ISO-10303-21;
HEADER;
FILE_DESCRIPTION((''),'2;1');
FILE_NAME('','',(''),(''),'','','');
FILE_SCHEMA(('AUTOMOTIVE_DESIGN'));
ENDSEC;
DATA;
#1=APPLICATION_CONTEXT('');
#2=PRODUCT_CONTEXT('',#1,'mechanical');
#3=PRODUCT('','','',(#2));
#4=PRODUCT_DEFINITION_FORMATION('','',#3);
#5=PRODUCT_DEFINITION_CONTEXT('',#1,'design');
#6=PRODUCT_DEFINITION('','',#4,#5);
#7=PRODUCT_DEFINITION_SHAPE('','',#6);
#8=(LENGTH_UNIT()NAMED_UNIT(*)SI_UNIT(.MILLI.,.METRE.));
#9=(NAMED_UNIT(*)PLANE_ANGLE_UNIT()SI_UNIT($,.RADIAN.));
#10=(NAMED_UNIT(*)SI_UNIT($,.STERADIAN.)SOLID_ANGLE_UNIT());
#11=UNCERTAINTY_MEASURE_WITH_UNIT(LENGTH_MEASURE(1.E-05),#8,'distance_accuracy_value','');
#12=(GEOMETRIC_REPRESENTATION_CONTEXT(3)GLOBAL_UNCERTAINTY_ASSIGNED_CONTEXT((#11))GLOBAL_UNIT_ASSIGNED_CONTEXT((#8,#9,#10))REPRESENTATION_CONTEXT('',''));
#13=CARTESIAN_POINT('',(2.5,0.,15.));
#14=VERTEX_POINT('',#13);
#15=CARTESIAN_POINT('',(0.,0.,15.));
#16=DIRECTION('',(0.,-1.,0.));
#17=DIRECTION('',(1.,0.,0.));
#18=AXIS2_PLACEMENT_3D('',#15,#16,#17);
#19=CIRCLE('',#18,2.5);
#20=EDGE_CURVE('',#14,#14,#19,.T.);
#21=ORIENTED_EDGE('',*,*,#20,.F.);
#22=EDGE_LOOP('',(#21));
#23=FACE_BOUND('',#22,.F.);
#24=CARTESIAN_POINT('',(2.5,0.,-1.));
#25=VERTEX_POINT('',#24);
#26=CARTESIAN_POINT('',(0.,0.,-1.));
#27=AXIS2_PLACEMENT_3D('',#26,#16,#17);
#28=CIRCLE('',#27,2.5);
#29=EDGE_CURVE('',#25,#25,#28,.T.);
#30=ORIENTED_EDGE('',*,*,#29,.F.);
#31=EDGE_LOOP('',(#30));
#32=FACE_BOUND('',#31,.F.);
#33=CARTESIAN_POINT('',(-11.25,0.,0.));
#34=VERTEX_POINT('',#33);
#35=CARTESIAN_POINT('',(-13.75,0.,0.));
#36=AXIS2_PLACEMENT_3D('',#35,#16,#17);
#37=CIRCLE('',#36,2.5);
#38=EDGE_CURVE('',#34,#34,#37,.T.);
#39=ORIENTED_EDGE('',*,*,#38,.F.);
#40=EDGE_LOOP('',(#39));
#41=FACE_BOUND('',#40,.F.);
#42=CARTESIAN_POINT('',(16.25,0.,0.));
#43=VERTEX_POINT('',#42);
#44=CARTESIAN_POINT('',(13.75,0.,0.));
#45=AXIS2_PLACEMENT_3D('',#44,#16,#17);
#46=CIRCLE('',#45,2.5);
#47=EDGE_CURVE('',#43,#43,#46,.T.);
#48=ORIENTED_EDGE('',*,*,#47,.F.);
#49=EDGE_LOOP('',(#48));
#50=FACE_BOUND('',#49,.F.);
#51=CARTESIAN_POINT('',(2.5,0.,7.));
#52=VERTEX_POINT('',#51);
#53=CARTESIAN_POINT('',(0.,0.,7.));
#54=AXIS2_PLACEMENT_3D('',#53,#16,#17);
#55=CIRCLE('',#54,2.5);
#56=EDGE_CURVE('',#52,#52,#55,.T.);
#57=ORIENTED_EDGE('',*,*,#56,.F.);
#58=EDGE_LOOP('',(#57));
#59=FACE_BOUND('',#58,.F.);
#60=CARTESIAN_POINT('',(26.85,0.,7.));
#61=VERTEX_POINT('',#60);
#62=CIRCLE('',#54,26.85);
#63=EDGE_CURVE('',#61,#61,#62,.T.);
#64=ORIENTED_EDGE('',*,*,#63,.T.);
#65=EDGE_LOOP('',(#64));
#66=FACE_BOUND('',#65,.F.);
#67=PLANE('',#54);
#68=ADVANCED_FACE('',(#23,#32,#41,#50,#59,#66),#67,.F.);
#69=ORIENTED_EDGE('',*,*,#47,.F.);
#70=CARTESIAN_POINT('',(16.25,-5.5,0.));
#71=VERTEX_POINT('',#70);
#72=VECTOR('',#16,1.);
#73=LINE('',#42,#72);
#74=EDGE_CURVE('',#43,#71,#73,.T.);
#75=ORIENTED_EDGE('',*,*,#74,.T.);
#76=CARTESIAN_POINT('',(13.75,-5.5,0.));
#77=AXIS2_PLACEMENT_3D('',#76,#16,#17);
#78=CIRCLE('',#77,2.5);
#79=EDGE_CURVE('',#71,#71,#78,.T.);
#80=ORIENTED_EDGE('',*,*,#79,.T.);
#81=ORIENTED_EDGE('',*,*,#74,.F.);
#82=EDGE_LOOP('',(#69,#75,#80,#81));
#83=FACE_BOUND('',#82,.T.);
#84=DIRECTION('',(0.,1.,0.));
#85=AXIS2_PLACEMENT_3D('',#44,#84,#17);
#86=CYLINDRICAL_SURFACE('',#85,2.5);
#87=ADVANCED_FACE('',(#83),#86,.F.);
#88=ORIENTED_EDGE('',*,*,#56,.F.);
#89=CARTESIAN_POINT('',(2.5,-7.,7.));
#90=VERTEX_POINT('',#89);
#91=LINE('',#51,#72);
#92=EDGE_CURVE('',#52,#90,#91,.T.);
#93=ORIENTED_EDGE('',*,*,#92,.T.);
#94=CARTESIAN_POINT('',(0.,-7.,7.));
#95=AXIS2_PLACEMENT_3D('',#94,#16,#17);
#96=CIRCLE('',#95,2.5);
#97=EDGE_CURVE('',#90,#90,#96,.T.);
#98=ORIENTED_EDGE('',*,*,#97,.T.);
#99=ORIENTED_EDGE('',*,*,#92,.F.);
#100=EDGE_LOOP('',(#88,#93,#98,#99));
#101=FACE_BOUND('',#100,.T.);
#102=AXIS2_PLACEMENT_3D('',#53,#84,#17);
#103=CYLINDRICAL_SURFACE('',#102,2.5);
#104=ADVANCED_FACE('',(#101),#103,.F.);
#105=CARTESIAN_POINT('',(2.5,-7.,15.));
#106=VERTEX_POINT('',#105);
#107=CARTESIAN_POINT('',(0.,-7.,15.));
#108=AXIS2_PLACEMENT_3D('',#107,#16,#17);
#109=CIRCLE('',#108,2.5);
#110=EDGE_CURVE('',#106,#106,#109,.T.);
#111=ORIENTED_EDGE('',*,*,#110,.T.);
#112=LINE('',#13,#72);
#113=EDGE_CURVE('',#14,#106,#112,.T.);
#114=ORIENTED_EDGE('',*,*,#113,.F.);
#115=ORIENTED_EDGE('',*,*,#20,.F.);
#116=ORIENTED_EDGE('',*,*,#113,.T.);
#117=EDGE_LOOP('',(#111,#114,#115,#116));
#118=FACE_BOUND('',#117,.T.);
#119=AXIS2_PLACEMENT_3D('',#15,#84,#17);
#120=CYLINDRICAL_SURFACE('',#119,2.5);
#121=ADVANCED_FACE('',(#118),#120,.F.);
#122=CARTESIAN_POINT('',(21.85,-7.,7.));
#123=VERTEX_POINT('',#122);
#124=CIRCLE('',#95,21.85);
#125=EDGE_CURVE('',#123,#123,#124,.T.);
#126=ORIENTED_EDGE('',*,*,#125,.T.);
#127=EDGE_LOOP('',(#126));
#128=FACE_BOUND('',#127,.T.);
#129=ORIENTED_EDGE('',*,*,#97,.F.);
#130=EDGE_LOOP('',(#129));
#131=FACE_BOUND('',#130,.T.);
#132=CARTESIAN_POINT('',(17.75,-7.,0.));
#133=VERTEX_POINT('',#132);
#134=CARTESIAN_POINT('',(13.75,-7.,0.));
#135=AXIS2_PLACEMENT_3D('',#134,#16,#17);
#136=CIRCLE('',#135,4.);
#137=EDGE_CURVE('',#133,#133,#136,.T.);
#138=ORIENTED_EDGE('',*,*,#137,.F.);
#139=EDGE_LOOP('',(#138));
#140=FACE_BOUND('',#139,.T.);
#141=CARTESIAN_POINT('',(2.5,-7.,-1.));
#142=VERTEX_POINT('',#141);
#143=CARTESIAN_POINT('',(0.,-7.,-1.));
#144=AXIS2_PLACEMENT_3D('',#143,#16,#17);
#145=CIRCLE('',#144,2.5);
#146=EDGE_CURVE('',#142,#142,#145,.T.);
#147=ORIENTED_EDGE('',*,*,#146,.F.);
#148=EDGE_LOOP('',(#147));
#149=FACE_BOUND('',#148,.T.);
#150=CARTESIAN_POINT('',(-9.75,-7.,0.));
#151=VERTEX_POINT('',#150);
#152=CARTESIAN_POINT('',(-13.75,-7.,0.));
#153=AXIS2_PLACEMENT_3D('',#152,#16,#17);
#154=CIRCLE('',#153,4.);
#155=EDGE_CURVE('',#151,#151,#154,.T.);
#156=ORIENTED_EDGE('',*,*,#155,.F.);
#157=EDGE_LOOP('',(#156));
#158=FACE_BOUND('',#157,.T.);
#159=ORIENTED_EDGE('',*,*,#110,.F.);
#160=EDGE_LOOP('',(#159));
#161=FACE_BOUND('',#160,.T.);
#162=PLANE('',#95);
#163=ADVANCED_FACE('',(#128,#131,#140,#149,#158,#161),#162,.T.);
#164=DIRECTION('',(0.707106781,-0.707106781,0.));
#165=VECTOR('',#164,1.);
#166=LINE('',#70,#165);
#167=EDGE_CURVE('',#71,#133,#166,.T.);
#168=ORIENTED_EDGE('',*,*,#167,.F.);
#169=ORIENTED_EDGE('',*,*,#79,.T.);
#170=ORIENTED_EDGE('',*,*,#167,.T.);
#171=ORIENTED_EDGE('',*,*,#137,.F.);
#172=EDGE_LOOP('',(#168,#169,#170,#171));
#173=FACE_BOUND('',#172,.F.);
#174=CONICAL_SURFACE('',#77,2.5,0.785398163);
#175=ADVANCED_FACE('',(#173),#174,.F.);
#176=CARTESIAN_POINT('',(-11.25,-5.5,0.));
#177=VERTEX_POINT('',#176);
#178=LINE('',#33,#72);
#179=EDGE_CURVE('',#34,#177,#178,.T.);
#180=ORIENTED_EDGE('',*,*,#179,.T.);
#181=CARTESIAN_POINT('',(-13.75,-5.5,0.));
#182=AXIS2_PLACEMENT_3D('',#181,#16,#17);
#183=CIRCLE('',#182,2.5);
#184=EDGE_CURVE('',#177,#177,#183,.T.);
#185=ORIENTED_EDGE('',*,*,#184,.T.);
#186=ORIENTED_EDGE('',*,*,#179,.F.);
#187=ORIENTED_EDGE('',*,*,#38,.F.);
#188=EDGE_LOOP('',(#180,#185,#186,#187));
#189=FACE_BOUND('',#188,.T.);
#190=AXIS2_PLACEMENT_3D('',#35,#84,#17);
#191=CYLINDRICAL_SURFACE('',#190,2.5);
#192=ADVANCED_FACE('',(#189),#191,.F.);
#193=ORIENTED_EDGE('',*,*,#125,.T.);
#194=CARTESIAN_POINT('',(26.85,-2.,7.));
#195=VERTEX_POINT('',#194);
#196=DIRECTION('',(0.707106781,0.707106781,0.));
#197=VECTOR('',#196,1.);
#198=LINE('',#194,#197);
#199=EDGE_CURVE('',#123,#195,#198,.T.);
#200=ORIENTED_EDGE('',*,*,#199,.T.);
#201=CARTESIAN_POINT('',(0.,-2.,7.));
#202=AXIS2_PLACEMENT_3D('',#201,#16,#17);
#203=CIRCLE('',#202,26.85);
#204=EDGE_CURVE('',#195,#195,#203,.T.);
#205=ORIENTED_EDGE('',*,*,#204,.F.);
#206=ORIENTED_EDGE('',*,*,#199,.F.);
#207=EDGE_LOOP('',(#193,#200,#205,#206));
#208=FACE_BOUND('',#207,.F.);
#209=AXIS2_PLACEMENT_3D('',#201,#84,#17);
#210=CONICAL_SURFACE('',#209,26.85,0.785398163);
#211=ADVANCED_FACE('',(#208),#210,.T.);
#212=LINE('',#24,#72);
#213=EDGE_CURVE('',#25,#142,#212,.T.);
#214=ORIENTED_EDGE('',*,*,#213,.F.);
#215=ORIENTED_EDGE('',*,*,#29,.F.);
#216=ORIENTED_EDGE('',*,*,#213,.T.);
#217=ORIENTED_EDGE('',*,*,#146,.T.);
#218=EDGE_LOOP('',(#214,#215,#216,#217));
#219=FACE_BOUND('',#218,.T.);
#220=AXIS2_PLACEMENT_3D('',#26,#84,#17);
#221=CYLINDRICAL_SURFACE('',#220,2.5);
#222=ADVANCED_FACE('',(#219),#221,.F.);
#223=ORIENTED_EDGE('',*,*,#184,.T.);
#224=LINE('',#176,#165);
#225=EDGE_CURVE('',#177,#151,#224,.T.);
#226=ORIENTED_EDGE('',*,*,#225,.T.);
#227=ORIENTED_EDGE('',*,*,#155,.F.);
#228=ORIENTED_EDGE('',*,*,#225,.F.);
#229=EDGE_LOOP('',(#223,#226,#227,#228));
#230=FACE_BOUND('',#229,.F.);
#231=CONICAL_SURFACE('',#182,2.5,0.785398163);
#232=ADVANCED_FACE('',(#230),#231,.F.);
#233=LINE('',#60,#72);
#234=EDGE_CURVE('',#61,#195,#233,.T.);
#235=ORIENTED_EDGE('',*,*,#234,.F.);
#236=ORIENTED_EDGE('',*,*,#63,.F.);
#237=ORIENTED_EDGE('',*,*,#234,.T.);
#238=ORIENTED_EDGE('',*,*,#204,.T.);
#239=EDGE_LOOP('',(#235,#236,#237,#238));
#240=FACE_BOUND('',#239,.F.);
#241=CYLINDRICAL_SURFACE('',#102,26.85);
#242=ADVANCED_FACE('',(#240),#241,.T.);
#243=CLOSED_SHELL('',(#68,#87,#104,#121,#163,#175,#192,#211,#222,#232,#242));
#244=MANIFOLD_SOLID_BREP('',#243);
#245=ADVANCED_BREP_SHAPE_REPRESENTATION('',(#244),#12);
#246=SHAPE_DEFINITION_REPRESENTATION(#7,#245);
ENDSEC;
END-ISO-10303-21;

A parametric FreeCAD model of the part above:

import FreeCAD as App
import Part
import Sketcher
from FreeCAD import Vector
Q = App.Units.Quantity


def edges_at(feature, points):
    """Names of the edges that pass closest to the given points."""
    edges = feature.Shape.Edges
    near = lambda p: min(range(len(edges)), key=lambda i: edges[i].distToShape(Part.Vertex(*p))[0])
    return sorted({f"Edge{near(p) + 1}" for p in points})

doc = App.newDocument("Part")
body = doc.addObject("PartDesign::Body", "Body")

sketch1 = body.newObject("Sketcher::SketchObject", "Sketch")
sketch1.AttachmentSupport = (doc.getObject("XZ_Plane"), [""])
sketch1.MapMode = "FlatFace"
sketch1.addGeometry([
    Part.Circle(Vector(0, 7, 0), Vector(0, 0, 1), 26.85),
    Part.Circle(Vector(-13.75, 0, 0), Vector(0, 0, 1), 2.5),
    Part.Circle(Vector(0, -1, 0), Vector(0, 0, 1), 2.5),
    Part.Circle(Vector(13.75, 0, 0), Vector(0, 0, 1), 2.5),
    Part.Circle(Vector(0, 7, 0), Vector(0, 0, 1), 2.5),
    Part.Circle(Vector(0, 15, 0), Vector(0, 0, 1), 2.5),
], False)
sketch1.addConstraint([
    Sketcher.Constraint("Coincident", 4, 3, 0, 3),
    Sketcher.Constraint("Equal", 1, 2),
    Sketcher.Constraint("Equal", 2, 3),
    Sketcher.Constraint("Equal", 3, 4),
    Sketcher.Constraint("Equal", 4, 5),
    Sketcher.Constraint("Symmetric", 1, 3, 3, 3, -1, 1),
    Sketcher.Constraint("PointOnObject", 0, 3, -2),
    Sketcher.Constraint("PointOnObject", 1, 3, -1),
    Sketcher.Constraint("PointOnObject", 2, 3, -2),
    Sketcher.Constraint("PointOnObject", 5, 3, -2),
    Sketcher.Constraint("Diameter", 1, Q("5 mm")),
    Sketcher.Constraint("Diameter", 0, Q("53.7 mm")),
    Sketcher.Constraint("DistanceY", -1, 1, 0, 3, Q("7 mm")),
    Sketcher.Constraint("DistanceY", 2, 3, -1, 1, Q("1 mm")),
    Sketcher.Constraint("DistanceY", -1, 1, 5, 3, Q("15 mm")),
    Sketcher.Constraint("DistanceX", 1, 3, 3, 3, Q("27.5 mm")),
])
pad1 = body.newObject("PartDesign::Pad", "Pad")
pad1.Profile = sketch1
pad1.Length = 7
doc.recompute()

chamfer = body.newObject("PartDesign::Chamfer", "Chamfer")
chamfer.Base = (pad1, edges_at(pad1, [(-16.25, -7, 0), (11.25, -7, 0)]))
chamfer.Size = 1.5
doc.recompute()

chamfer2 = body.newObject("PartDesign::Chamfer", "Chamfer001")
chamfer2.Base = (chamfer, edges_at(chamfer, [(-26.85, -7, 7)]))
chamfer2.Size = 5

doc.recompute()
